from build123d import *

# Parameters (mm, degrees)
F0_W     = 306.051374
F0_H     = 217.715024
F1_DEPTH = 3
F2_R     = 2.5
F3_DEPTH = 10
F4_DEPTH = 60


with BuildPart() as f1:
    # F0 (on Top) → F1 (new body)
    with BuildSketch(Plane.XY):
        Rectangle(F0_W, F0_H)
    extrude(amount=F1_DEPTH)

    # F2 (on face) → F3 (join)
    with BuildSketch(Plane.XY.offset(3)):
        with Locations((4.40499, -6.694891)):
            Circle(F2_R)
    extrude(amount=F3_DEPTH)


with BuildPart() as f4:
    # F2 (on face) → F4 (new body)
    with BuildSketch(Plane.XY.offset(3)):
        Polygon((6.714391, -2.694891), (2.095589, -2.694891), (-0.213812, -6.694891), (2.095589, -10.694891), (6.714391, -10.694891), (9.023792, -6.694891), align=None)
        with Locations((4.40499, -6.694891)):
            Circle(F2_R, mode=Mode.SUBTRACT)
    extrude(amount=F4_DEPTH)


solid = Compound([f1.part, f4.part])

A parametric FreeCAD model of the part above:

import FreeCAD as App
import Part
import Sketcher
from FreeCAD import Vector
Q = App.Units.Quantity

doc = App.newDocument("Part")
params = doc.addObject("Spreadsheet::Sheet", "Params")
for row, (alias, value) in enumerate([
    ("pad1_length", "3 mm"),
    ("sketch2_diameter", "5 mm"),
    ("pad2_length", "10 mm"),
    ("sketch3_diameter", "5 mm"),
    ("pad3_length", "60 mm"),
], start=1):
    params.set(f"A{row}", alias)
    params.set(f"B{row}", "=" + value)
    params.setAlias(f"B{row}", alias)

body = doc.addObject("PartDesign::Body", "Body")

# Sketch on XY plane
sketch1 = body.newObject("Sketcher::SketchObject", "Sketch")
sketch1.AttachmentSupport = (doc.getObject("XY_Plane"), [""])
sketch1.MapMode = "FlatFace"
sketch1.addGeometry(Part.LineSegment(Vector(-153.025687, 108.857512, 0), Vector(-153.025687, -108.857512, 0)), False)
sketch1.addGeometry(Part.LineSegment(Vector(-153.025687, -108.857512, 0), Vector(153.025687, -108.857512, 0)), False)
sketch1.addGeometry(Part.LineSegment(Vector(153.025687, -108.857512, 0), Vector(153.025687, 108.857512, 0)), False)
sketch1.addGeometry(Part.LineSegment(Vector(153.025687, 108.857512, 0), Vector(-153.025687, 108.857512, 0)), False)
sketch1.addConstraint(Sketcher.Constraint("Coincident", 0, 2, 1, 1))
sketch1.addConstraint(Sketcher.Constraint("Coincident", 1, 2, 2, 1))
sketch1.addConstraint(Sketcher.Constraint("Coincident", 2, 2, 3, 1))
sketch1.addConstraint(Sketcher.Constraint("Coincident", 3, 2, 0, 1))
sketch1.addConstraint(Sketcher.Constraint("Vertical", 0))
sketch1.addConstraint(Sketcher.Constraint("Horizontal", 1))
sketch1.addConstraint(Sketcher.Constraint("Vertical", 2))
sketch1.addConstraint(Sketcher.Constraint("Horizontal", 3))
sketch1.addConstraint(Sketcher.Constraint("Symmetric", 0, 2, 2, 2, -1, 1))
sketch1.addConstraint(Sketcher.Constraint("DistanceX", 1, 1, 1, 2, Q("306.051374 mm")))
sketch1.addConstraint(Sketcher.Constraint("DistanceY", 0, 2, 0, 1, Q("217.715024 mm")))
pad1 = body.newObject("PartDesign::Pad", "Pad")
pad1.Profile = sketch1
pad1.setExpression("Length", "Params.pad1_length")

# Sketch on XY plane
sketch2 = body.newObject("Sketcher::SketchObject", "Sketch001")
sketch2.AttachmentSupport = (doc.getObject("XY_Plane"), [""])
sketch2.MapMode = "FlatFace"
sketch2.AttachmentOffset = App.Placement(Vector(0, 0, 3), App.Rotation())
sketch2.addGeometry(Part.Circle(Vector(4.40499, -6.694891, 0), Vector(0, 0, 1), 2.5), False)
sketch2.addConstraint(Sketcher.Constraint("Diameter", 0, Q("5 mm")))
sketch2.addConstraint(Sketcher.Constraint("DistanceX", -1, 1, 0, 3, Q("4.40499 mm")))
sketch2.addConstraint(Sketcher.Constraint("DistanceY", 0, 3, -1, 1, Q("6.694891 mm")))
sketch2.setExpression("Constraints[0]", "Params.sketch2_diameter")
pad2 = body.newObject("PartDesign::Pad", "Pad001")
pad2.Profile = sketch2
pad2.setExpression("Length", "Params.pad2_length")
body2 = doc.addObject("PartDesign::Body", "Body001")

# Sketch on XY plane
sketch3 = body2.newObject("Sketcher::SketchObject", "Sketch002")
sketch3.AttachmentSupport = (doc.getObject("XY_Plane001"), [""])
sketch3.MapMode = "FlatFace"
sketch3.AttachmentOffset = App.Placement(Vector(0, 0, 3), App.Rotation())
sketch3.addGeometry(Part.LineSegment(Vector(6.714391, -2.694891, 0), Vector(2.095589, -2.694891, 0)), False)
sketch3.addGeometry(Part.LineSegment(Vector(2.095589, -2.694891, 0), Vector(-0.213812, -6.694891, 0)), False)
sketch3.addGeometry(Part.LineSegment(Vector(-0.213812, -6.694891, 0), Vector(2.095589, -10.694891, 0)), False)
sketch3.addGeometry(Part.LineSegment(Vector(2.095589, -10.694891, 0), Vector(6.714391, -10.694891, 0)), False)
sketch3.addGeometry(Part.LineSegment(Vector(6.714391, -10.694891, 0), Vector(9.023792, -6.694891, 0)), False)
sketch3.addGeometry(Part.LineSegment(Vector(9.023792, -6.694891, 0), Vector(6.714391, -2.694891, 0)), False)
sketch3.addGeometry(Part.Circle(Vector(4.40499, -6.694891, 0), Vector(0, 0, 1), 2.5), False)
sketch3.addConstraint(Sketcher.Constraint("Coincident", 0, 2, 1, 1))
sketch3.addConstraint(Sketcher.Constraint("Coincident", 1, 2, 2, 1))
sketch3.addConstraint(Sketcher.Constraint("Coincident", 2, 2, 3, 1))
sketch3.addConstraint(Sketcher.Constraint("Coincident", 3, 2, 4, 1))
sketch3.addConstraint(Sketcher.Constraint("Coincident", 4, 2, 5, 1))
sketch3.addConstraint(Sketcher.Constraint("Coincident", 5, 2, 0, 1))
sketch3.addConstraint(Sketcher.Constraint("Horizontal", 0))
sketch3.addConstraint(Sketcher.Constraint("Horizontal", 3))
sketch3.addConstraint(Sketcher.Constraint("Parallel", 1, 4))
sketch3.addConstraint(Sketcher.Constraint("Parallel", 2, 5))
sketch3.addConstraint(Sketcher.Constraint("Horizontal", 6, 3, 1, 2))
sketch3.addConstraint(Sketcher.Constraint("Horizontal", 1, 2, 4, 2))
sketch3.addConstraint(Sketcher.Constraint("Vertical", 0, 2, 2, 2))
sketch3.addConstraint(Sketcher.Constraint("Vertical", 3, 2, 5, 2))
sketch3.addConstraint(Sketcher.Constraint("Diameter", 6, Q("5 mm")))
sketch3.addConstraint(Sketcher.Constraint("Angle", 1, Q("-119.999999 deg")))
sketch3.addConstraint(Sketcher.Constraint("DistanceY", 6, 3, 0, 2, Q("4 mm")))
sketch3.addConstraint(Sketcher.Constraint("DistanceX", 0, 2, 6, 3, Q("2.309401 mm")))
sketch3.addConstraint(Sketcher.Constraint("DistanceX", 6, 3, 3, 2, Q("2.309401 mm")))
sketch3.addConstraint(Sketcher.Constraint("DistanceX", -1, 1, 6, 3, Q("4.40499 mm")))
sketch3.addConstraint(Sketcher.Constraint("DistanceY", 6, 3, -1, 1, Q("6.694891 mm")))
sketch3.setExpression("Constraints[14]", "Params.sketch3_diameter")
pad3 = body2.newObject("PartDesign::Pad", "Pad002")
pad3.Profile = sketch3
pad3.setExpression("Length", "Params.pad3_length")

doc.recompute()
